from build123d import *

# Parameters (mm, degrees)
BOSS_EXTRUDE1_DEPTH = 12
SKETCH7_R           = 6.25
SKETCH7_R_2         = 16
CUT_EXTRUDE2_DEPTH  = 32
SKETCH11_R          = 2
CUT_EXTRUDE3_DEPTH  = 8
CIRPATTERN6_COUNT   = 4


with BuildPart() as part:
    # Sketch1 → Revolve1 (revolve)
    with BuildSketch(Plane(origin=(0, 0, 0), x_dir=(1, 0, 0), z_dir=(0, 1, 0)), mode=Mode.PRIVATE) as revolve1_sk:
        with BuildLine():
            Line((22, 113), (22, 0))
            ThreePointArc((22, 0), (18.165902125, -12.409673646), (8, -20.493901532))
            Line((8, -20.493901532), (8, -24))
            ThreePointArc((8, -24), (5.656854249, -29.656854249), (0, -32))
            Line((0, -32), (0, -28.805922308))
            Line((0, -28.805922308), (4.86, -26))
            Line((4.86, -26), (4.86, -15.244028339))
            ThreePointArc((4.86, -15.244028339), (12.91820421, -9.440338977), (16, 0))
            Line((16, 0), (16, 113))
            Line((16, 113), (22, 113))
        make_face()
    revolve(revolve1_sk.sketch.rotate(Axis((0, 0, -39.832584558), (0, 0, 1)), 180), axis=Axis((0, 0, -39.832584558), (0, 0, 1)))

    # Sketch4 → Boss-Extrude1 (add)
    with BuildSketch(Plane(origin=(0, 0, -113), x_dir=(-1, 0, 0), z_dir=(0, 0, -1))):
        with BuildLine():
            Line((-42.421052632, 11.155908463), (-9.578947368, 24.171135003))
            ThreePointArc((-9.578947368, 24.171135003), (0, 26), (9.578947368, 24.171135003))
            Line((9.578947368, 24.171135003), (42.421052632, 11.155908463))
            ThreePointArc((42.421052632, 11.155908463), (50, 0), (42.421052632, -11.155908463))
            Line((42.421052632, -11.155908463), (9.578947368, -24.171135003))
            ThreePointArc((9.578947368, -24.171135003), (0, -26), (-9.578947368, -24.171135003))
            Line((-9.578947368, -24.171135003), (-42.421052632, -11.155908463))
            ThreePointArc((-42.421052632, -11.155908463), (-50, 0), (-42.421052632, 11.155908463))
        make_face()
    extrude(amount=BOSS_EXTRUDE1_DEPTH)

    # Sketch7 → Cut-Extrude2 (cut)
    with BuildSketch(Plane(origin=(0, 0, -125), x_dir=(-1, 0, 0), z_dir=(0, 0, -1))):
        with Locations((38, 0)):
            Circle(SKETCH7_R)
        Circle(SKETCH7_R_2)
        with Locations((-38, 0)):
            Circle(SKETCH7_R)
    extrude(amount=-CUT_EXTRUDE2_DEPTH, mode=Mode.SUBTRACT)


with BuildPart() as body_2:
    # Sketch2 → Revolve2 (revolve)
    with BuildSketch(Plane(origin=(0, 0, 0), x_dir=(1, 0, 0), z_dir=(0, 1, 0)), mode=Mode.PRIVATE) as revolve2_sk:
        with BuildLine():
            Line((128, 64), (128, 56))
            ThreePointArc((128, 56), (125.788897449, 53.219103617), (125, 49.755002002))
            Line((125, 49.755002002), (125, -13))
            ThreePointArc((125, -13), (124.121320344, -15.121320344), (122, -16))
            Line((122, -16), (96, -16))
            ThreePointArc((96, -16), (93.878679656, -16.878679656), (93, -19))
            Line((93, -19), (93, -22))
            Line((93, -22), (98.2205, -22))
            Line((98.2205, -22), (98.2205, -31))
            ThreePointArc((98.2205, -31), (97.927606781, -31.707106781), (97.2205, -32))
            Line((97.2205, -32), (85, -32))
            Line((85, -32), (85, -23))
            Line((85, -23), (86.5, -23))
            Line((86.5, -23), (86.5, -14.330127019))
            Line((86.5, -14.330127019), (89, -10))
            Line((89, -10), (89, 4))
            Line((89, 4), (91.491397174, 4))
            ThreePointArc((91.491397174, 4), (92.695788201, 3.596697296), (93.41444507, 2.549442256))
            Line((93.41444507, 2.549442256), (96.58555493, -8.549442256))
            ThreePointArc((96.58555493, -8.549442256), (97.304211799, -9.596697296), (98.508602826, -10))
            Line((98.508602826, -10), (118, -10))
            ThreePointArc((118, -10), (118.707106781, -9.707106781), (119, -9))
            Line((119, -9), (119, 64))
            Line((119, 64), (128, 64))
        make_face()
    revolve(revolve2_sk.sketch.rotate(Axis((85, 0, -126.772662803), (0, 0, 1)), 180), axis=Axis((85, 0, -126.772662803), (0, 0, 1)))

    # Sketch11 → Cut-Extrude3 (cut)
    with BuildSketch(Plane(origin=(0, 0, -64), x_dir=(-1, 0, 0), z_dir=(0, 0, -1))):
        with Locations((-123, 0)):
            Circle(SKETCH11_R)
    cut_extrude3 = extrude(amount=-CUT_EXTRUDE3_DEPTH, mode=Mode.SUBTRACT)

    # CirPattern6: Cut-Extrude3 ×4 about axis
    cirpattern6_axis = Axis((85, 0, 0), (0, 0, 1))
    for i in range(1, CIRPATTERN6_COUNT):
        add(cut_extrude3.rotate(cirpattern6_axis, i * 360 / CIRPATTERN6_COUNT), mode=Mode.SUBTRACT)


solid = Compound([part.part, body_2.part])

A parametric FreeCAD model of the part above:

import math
import FreeCAD as App
import Part
import Sketcher

V = App.Vector
Q = App.Units.Quantity

doc = App.newDocument("Part")
params = doc.addObject("Spreadsheet::Sheet", "Params")
for row, (alias, value) in enumerate([
    ("sketch1_radius", "16 mm"),
    ("sketch1_radius2", "8 mm"),
    ("sketch1_radius3", "22 mm"),
    ("sketch1_height", "113 mm"),
    ("revolution_angle", "360 deg"),
    ("sketch2_radius", "12 mm"),
    ("sketch2_radius2", "26 mm"),
    ("pad1_length", "12 mm"),
    ("sketch3_diameter", "32 mm"),
    ("sketch3_diameter2", "12.5 mm"),
    ("pocket1_length", "32 mm"),
    ("sketch4_radius", "1 mm"),
    ("sketch4_radius2", "2 mm"),
    ("sketch4_radius3", "3 mm"),
    ("sketch4_radius4", "8 mm"),
    ("sketch4_width", "9 mm"),
    ("revolution2_angle", "360 deg"),
    ("sketch5_diameter", "4 mm"),
    ("pocket2_length", "8 mm"),
], start=1):
    params.set(f"A{row}", alias)
    params.set(f"B{row}", "=" + value)
    params.setAlias(f"B{row}", alias)

body = doc.addObject("PartDesign::Body", "Body")

sketch1 = body.newObject("Sketcher::SketchObject", "Sketch")
sketch1.AttachmentSupport = (doc.getObject("XZ_Plane"), [""])
sketch1.MapMode = "FlatFace"
sketch1.addGeometry(Part.LineSegment(V(22, 0, 0), V(22, -113, 0)), False)
sketch1.addGeometry(Part.LineSegment(V(22, -113, 0), V(16, -113, 0)), False)
sketch1.addGeometry(Part.LineSegment(V(16, -113, 0), V(16, 0, 0)), False)
sketch1.addGeometry(Part.ArcOfCircle(Part.Circle(V(0, 0, 0), V(0, 0, 1), 16), math.radians(0), math.radians(72)), False)
sketch1.addGeometry(Part.LineSegment(V(4.9, 15.2, 0), V(4.9, 26, 0)), False)
sketch1.addGeometry(Part.LineSegment(V(4.9, 26, 0), V(0, 28.8, 0)), False)
sketch1.addGeometry(Part.LineSegment(V(0, 28.8, 0), V(0, 32, 0)), False)
sketch1.addGeometry(Part.ArcOfCircle(Part.Circle(V(0, 24, 0), V(0, 0, 1), 8), math.radians(0), math.radians(90)), False)
sketch1.addGeometry(Part.LineSegment(V(8, 24, 0), V(8, 20.5, 0)), False)
sketch1.addGeometry(Part.ArcOfCircle(Part.Circle(V(0, 0, 0), V(0, 0, 1), 22), math.radians(0), math.radians(69)), False)
sketch1.addConstraint(Sketcher.Constraint("Coincident", 0, 2, 1, 1))
sketch1.addConstraint(Sketcher.Constraint("Coincident", 1, 2, 2, 1))
sketch1.addConstraint(Sketcher.Constraint("Tangent", 2, 2, 3, 1))
sketch1.addConstraint(Sketcher.Constraint("Coincident", 3, 2, 4, 1))
sketch1.addConstraint(Sketcher.Constraint("Coincident", 4, 2, 5, 1))
sketch1.addConstraint(Sketcher.Constraint("Coincident", 5, 2, 6, 1))
sketch1.addConstraint(Sketcher.Constraint("Coincident", 6, 2, 7, 2))
sketch1.addConstraint(Sketcher.Constraint("Tangent", 7, 1, 8, 1))
sketch1.addConstraint(Sketcher.Constraint("Coincident", 8, 2, 9, 2))
sketch1.addConstraint(Sketcher.Constraint("Tangent", 9, 1, 0, 1))
sketch1.addConstraint(Sketcher.Constraint("Vertical", 0))
sketch1.addConstraint(Sketcher.Constraint("Horizontal", 1))
sketch1.addConstraint(Sketcher.Constraint("Vertical", 2))
sketch1.addConstraint(Sketcher.Constraint("Vertical", 4))
sketch1.addConstraint(Sketcher.Constraint("Vertical", 6))
sketch1.addConstraint(Sketcher.Constraint("Vertical", 8))
sketch1.addConstraint(Sketcher.Constraint("Coincident", 3, 3, -1, 1))
sketch1.addConstraint(Sketcher.Constraint("Coincident", 9, 3, -1, 1))
sketch1.addConstraint(Sketcher.Constraint("PointOnObject", 7, 3, -2))
sketch1.addConstraint(Sketcher.Constraint("PointOnObject", 5, 2, -2))
sketch1.addConstraint(Sketcher.Constraint("Radius", 3, Q("16 mm")))
sketch1.addConstraint(Sketcher.Constraint("Radius", 7, Q("8 mm")))
sketch1.addConstraint(Sketcher.Constraint("Radius", 9, Q("22 mm")))
sketch1.addConstraint(Sketcher.Constraint("DistanceY", 0, 2, 0, 1, Q("113 mm")))
sketch1.addConstraint(Sketcher.Constraint("Angle", 5, Q("150 deg")))
sketch1.addConstraint(Sketcher.Constraint("DistanceY", -1, 1, 7, 3, Q("24 mm")))
sketch1.addConstraint(Sketcher.Constraint("DistanceY", -1, 1, 4, 2, Q("26 mm")))
sketch1.addConstraint(Sketcher.Constraint("DistanceX", -1, 1, 3, 2, Q("4.86 mm")))
sketch1.setExpression("Constraints[20]", "Params.sketch1_radius")
sketch1.setExpression("Constraints[21]", "Params.sketch1_radius2")
sketch1.setExpression("Constraints[22]", "Params.sketch1_radius3")
sketch1.setExpression("Constraints[23]", "Params.sketch1_height")
revolution = body.newObject("PartDesign::Revolution", "Revolution")
revolution.Profile = sketch1
revolution.ReferenceAxis = (sketch1, ["V_Axis"])
revolution.setExpression("Angle", "Params.revolution_angle")

sketch2 = body.newObject("Sketcher::SketchObject", "Sketch001")
sketch2.AttachmentSupport = (doc.getObject("XY_Plane"), [""])
sketch2.MapMode = "FlatFace"
sketch2.AttachmentOffset = App.Placement(V(0, 0, -113), App.Rotation())
sketch2.addGeometry(Part.LineSegment(V(10, 24, 0), V(42, 11, 0)), False)
sketch2.addGeometry(Part.ArcOfCircle(Part.Circle(V(38, 0, 0), V(0, 0, 1), 12), math.radians(-68), math.radians(68)), False)
sketch2.addGeometry(Part.LineSegment(V(42, -11, 0), V(10, -24, 0)), False)
sketch2.addGeometry(Part.ArcOfCircle(Part.Circle(V(0, 0, 0), V(0, 0, 1), 26), math.radians(-112), math.radians(-68)), False)
sketch2.addGeometry(Part.LineSegment(V(-10, -24, 0), V(-42, -11, 0)), False)
sketch2.addGeometry(Part.ArcOfCircle(Part.Circle(V(-38, 0, 0), V(0, 0, 1), 12), math.radians(112), math.radians(248)), False)
sketch2.addGeometry(Part.LineSegment(V(-42, 11, 0), V(-10, 24, 0)), False)
sketch2.addGeometry(Part.ArcOfCircle(Part.Circle(V(0, 0, 0), V(0, 0, 1), 26), math.radians(68), math.radians(112)), False)
sketch2.addConstraint(Sketcher.Constraint("Tangent", 0, 2, 1, 2))
sketch2.addConstraint(Sketcher.Constraint("Tangent", 1, 1, 2, 1))
sketch2.addConstraint(Sketcher.Constraint("Tangent", 2, 2, 3, 2))
sketch2.addConstraint(Sketcher.Constraint("Tangent", 3, 1, 4, 1))
sketch2.addConstraint(Sketcher.Constraint("Tangent", 4, 2, 5, 2))
sketch2.addConstraint(Sketcher.Constraint("Tangent", 5, 1, 6, 1))
sketch2.addConstraint(Sketcher.Constraint("Tangent", 6, 2, 7, 2))
sketch2.addConstraint(Sketcher.Constraint("Tangent", 7, 1, 0, 1))
sketch2.addConstraint(Sketcher.Constraint("Coincident", 3, 3, -1, 1))
sketch2.addConstraint(Sketcher.Constraint("Coincident", 7, 3, -1, 1))
sketch2.addConstraint(Sketcher.Constraint("Equal", 1, 5))
sketch2.addConstraint(Sketcher.Constraint("Equal", 3, 7))
sketch2.addConstraint(Sketcher.Constraint("Symmetric", 1, 3, 5, 3, -1, 1))
sketch2.addConstraint(Sketcher.Constraint("PointOnObject", 1, 3, -1))
sketch2.addConstraint(Sketcher.Constraint("Radius", 1, Q("12 mm")))
sketch2.addConstraint(Sketcher.Constraint("Radius", 3, Q("26 mm")))
sketch2.addConstraint(Sketcher.Constraint("DistanceX", -1, 1, 1, 3, Q("38 mm")))
sketch2.setExpression("Constraints[14]", "Params.sketch2_radius")
sketch2.setExpression("Constraints[15]", "Params.sketch2_radius2")
pad1 = body.newObject("PartDesign::Pad", "Pad")
pad1.Profile = sketch2
pad1.setExpression("Length", "Params.pad1_length")
pad1.Reversed = True

sketch3 = body.newObject("Sketcher::SketchObject", "Sketch002")
sketch3.AttachmentSupport = (doc.getObject("XY_Plane"), [""])
sketch3.MapMode = "FlatFace"
sketch3.AttachmentOffset = App.Placement(V(0, 0, -125), App.Rotation())
sketch3.addGeometry(Part.Circle(V(-38, 0, 0), V(0, 0, 1), 6), False)
sketch3.addGeometry(Part.Circle(V(0, 0, 0), V(0, 0, 1), 16), False)
sketch3.addGeometry(Part.Circle(V(38, 0, 0), V(0, 0, 1), 6), False)
sketch3.addConstraint(Sketcher.Constraint("Coincident", 1, 3, -1, 1))
sketch3.addConstraint(Sketcher.Constraint("Equal", 0, 2))
sketch3.addConstraint(Sketcher.Constraint("Symmetric", 0, 3, 2, 3, -1, 1))
sketch3.addConstraint(Sketcher.Constraint("PointOnObject", 0, 3, -1))
sketch3.addConstraint(Sketcher.Constraint("Diameter", 1, Q("32 mm")))
sketch3.addConstraint(Sketcher.Constraint("Diameter", 0, Q("12.5 mm")))
sketch3.addConstraint(Sketcher.Constraint("DistanceX", 0, 3, -1, 1, Q("38 mm")))
sketch3.setExpression("Constraints[4]", "Params.sketch3_diameter")
sketch3.setExpression("Constraints[5]", "Params.sketch3_diameter2")
pocket1 = body.newObject("PartDesign::Pocket", "Pocket")
pocket1.Profile = sketch3
pocket1.setExpression("Length", "Params.pocket1_length")
pocket1.Reversed = True
body2 = doc.addObject("PartDesign::Body", "Body001")

sketch4 = body2.newObject("Sketcher::SketchObject", "Sketch003")
sketch4.AttachmentSupport = (doc.getObject("XZ_Plane001"), [""])
sketch4.MapMode = "FlatFace"
sketch4.addGeometry(Part.LineSegment(V(128, -56, 0), V(128, -64, 0)), False)
sketch4.addGeometry(Part.LineSegment(V(128, -64, 0), V(119, -64, 0)), False)
sketch4.addGeometry(Part.LineSegment(V(119, -64, 0), V(119, 9, 0)), False)
sketch4.addGeometry(Part.ArcOfCircle(Part.Circle(V(118, 9, 0), V(0, 0, 1), 1), math.radians(0), math.radians(90)), False)
sketch4.addGeometry(Part.LineSegment(V(118, 10, 0), V(98.5, 10, 0)), False)
sketch4.addGeometry(Part.ArcOfCircle(Part.Circle(V(98.5, 8, 0), V(0, 0, 1), 2), math.radians(90), math.radians(164)), False)
sketch4.addGeometry(Part.LineSegment(V(96.6, 8.5, 0), V(93.4, -2.5, 0)), False)
sketch4.addGeometry(Part.ArcOfCircle(Part.Circle(V(91.5, -2, 0), V(0, 0, 1), 2), math.radians(-90), math.radians(-16)), False)
sketch4.addGeometry(Part.LineSegment(V(91.5, -4, 0), V(89, -4, 0)), False)
sketch4.addGeometry(Part.LineSegment(V(89, -4, 0), V(89, 10, 0)), False)
sketch4.addGeometry(Part.LineSegment(V(89, 10, 0), V(86.5, 14.3, 0)), False)
sketch4.addGeometry(Part.LineSegment(V(86.5, 14.3, 0), V(86.5, 23, 0)), False)
sketch4.addGeometry(Part.LineSegment(V(86.5, 23, 0), V(85, 23, 0)), False)
sketch4.addGeometry(Part.LineSegment(V(85, 23, 0), V(85, 32, 0)), False)
sketch4.addGeometry(Part.LineSegment(V(85, 32, 0), V(97.2, 32, 0)), False)
sketch4.addGeometry(Part.ArcOfCircle(Part.Circle(V(97.2, 31, 0), V(0, 0, 1), 1), math.radians(0), math.radians(90)), False)
sketch4.addGeometry(Part.LineSegment(V(98.2, 31, 0), V(98.2, 22, 0)), False)
sketch4.addGeometry(Part.LineSegment(V(98.2, 22, 0), V(93, 22, 0)), False)
sketch4.addGeometry(Part.LineSegment(V(93, 22, 0), V(93, 19, 0)), False)
sketch4.addGeometry(Part.ArcOfCircle(Part.Circle(V(96, 19, 0), V(0, 0, 1), 3), math.radians(180), math.radians(270)), False)
sketch4.addGeometry(Part.LineSegment(V(96, 16, 0), V(122, 16, 0)), False)
sketch4.addGeometry(Part.ArcOfCircle(Part.Circle(V(122, 13, 0), V(0, 0, 1), 3), math.radians(0), math.radians(90)), False)
sketch4.addGeometry(Part.LineSegment(V(125, 13, 0), V(125, -49.8, 0)), False)
sketch4.addGeometry(Part.ArcOfCircle(Part.Circle(V(133, -49.8, 0), V(0, 0, 1), 8), math.radians(180), math.radians(231)), False)
sketch4.addGeometry(Part.LineSegment(V(85, -64, 0), V(85, 32, 0)), True)
sketch4.addConstraint(Sketcher.Constraint("Coincident", 0, 2, 1, 1))
sketch4.addConstraint(Sketcher.Constraint("Coincident", 1, 2, 2, 1))
sketch4.addConstraint(Sketcher.Constraint("Tangent", 2, 2, 3, 1))
sketch4.addConstraint(Sketcher.Constraint("Tangent", 3, 2, 4, 1))
sketch4.addConstraint(Sketcher.Constraint("Tangent", 4, 2, 5, 1))
sketch4.addConstraint(Sketcher.Constraint("Tangent", 5, 2, 6, 1))
sketch4.addConstraint(Sketcher.Constraint("Tangent", 6, 2, 7, 2))
sketch4.addConstraint(Sketcher.Constraint("Tangent", 7, 1, 8, 1))
sketch4.addConstraint(Sketcher.Constraint("Coincident", 8, 2, 9, 1))
sketch4.addConstraint(Sketcher.Constraint("Coincident", 9, 2, 10, 1))
sketch4.addConstraint(Sketcher.Constraint("Coincident", 10, 2, 11, 1))
sketch4.addConstraint(Sketcher.Constraint("Coincident", 11, 2, 12, 1))
sketch4.addConstraint(Sketcher.Constraint("Coincident", 12, 2, 13, 1))
sketch4.addConstraint(Sketcher.Constraint("Coincident", 13, 2, 14, 1))
sketch4.addConstraint(Sketcher.Constraint("Tangent", 14, 2, 15, 2))
sketch4.addConstraint(Sketcher.Constraint("Tangent", 15, 1, 16, 1))
sketch4.addConstraint(Sketcher.Constraint("Coincident", 16, 2, 17, 1))
sketch4.addConstraint(Sketcher.Constraint("Coincident", 17, 2, 18, 1))
sketch4.addConstraint(Sketcher.Constraint("Tangent", 18, 2, 19, 1))
sketch4.addConstraint(Sketcher.Constraint("Tangent", 19, 2, 20, 1))
sketch4.addConstraint(Sketcher.Constraint("Tangent", 20, 2, 21, 2))
sketch4.addConstraint(Sketcher.Constraint("Tangent", 21, 1, 22, 1))
sketch4.addConstraint(Sketcher.Constraint("Tangent", 22, 2, 23, 1))
sketch4.addConstraint(Sketcher.Constraint("Coincident", 23, 2, 0, 1))
sketch4.addConstraint(Sketcher.Constraint("Vertical", 0))
sketch4.addConstraint(Sketcher.Constraint("Horizontal", 1))
sketch4.addConstraint(Sketcher.Constraint("Vertical", 2))
sketch4.addConstraint(Sketcher.Constraint("Horizontal", 4))
sketch4.addConstraint(Sketcher.Constraint("Horizontal", 8))
sketch4.addConstraint(Sketcher.Constraint("Vertical", 9))
sketch4.addConstraint(Sketcher.Constraint("Vertical", 11))
sketch4.addConstraint(Sketcher.Constraint("Horizontal", 12))
sketch4.addConstraint(Sketcher.Constraint("Vertical", 13))
sketch4.addConstraint(Sketcher.Constraint("Horizontal", 14))
sketch4.addConstraint(Sketcher.Constraint("Vertical", 16))
sketch4.addConstraint(Sketcher.Constraint("Horizontal", 17))
sketch4.addConstraint(Sketcher.Constraint("Vertical", 18))
sketch4.addConstraint(Sketcher.Constraint("Horizontal", 20))
sketch4.addConstraint(Sketcher.Constraint("Vertical", 22))
sketch4.addConstraint(Sketcher.Constraint("Vertical", 24))
sketch4.addConstraint(Sketcher.Constraint("Coincident", 24, 2, 13, 2))
sketch4.addConstraint(Sketcher.Constraint("Equal", 5, 7))
sketch4.addConstraint(Sketcher.Constraint("Equal", 3, 15))
sketch4.addConstraint(Sketcher.Constraint("Equal", 19, 21))
sketch4.addConstraint(Sketcher.Constraint("Horizontal", 4, 2, 9, 2))
sketch4.addConstraint(Sketcher.Constraint("Horizontal", 1, 2, 24, 1))
sketch4.addConstraint(Sketcher.Constraint("Equal", 1, 13))
sketch4.addConstraint(Sketcher.Constraint("Equal", 13, 16))
sketch4.addConstraint(Sketcher.Constraint("Radius", 3, Q("1 mm")))
sketch4.addConstraint(Sketcher.Constraint("Radius", 5, Q("2 mm")))
sketch4.addConstraint(Sketcher.Constraint("Radius", 19, Q("3 mm")))
sketch4.addConstraint(Sketcher.Constraint("Radius", 23, Q("8 mm")))
sketch4.addConstraint(Sketcher.Constraint("DistanceX", 1, 2, 1, 1, Q("9 mm")))
sketch4.addConstraint(Sketcher.Constraint("DistanceX", 20, 1, 20, 2, Q("26 mm")))
sketch4.addConstraint(Sketcher.Constraint("DistanceY", 0, 2, 0, 1, Q("8 mm")))
sketch4.addConstraint(Sketcher.Constraint("DistanceY", 2, 1, 2, 2, Q("73 mm")))
sketch4.addConstraint(Sketcher.Constraint("DistanceY", 9, 1, 9, 2, Q("14 mm")))
sketch4.addConstraint(Sketcher.Constraint("DistanceY", 18, 2, 18, 1, Q("3 mm")))
sketch4.addConstraint(Sketcher.Constraint("DistanceY", 24, 1, 24, 2, Q("96 mm")))
sketch4.addConstraint(Sketcher.Constraint("Angle", 10, Q("120 deg")))
sketch4.addConstraint(Sketcher.Constraint("Distance", 10, Q("5 mm")))
sketch4.addConstraint(Sketcher.Constraint("DistanceX", 12, 2, 12, 1, Q("1.5 mm")))
sketch4.addConstraint(Sketcher.Constraint("DistanceX", -1, 1, 3, 3, Q("118 mm")))
sketch4.addConstraint(Sketcher.Constraint("DistanceY", -1, 1, 3, 3, Q("9 mm")))
sketch4.addConstraint(Sketcher.Constraint("DistanceX", -1, 1, 19, 3, Q("96 mm")))
sketch4.addConstraint(Sketcher.Constraint("DistanceX", -1, 1, 8, 2, Q("89 mm")))
sketch4.addConstraint(Sketcher.Constraint("DistanceX", 14, 1, 14, 2, Q("12.2205 mm")))
sketch4.addConstraint(Sketcher.Constraint("DistanceX", 4, 2, 4, 1, Q("19.491397 mm")))
sketch4.addConstraint(Sketcher.Constraint("DistanceX", 8, 2, 8, 1, Q("2.491397 mm")))
sketch4.setExpression("Constraints[48]", "Params.sketch4_radius")
sketch4.setExpression("Constraints[49]", "Params.sketch4_radius2")
sketch4.setExpression("Constraints[50]", "Params.sketch4_radius3")
sketch4.setExpression("Constraints[51]", "Params.sketch4_radius4")
sketch4.setExpression("Constraints[52]", "Params.sketch4_width")
revolution2 = body2.newObject("PartDesign::Revolution", "Revolution001")
revolution2.Profile = sketch4
revolution2.ReferenceAxis = (sketch4, ["Axis0"])
revolution2.setExpression("Angle", "Params.revolution2_angle")

sketch5 = body2.newObject("Sketcher::SketchObject", "Sketch004")
sketch5.AttachmentSupport = (doc.getObject("XY_Plane001"), [""])
sketch5.MapMode = "FlatFace"
sketch5.AttachmentOffset = App.Placement(V(0, 0, -64), App.Rotation())
sketch5.addGeometry(Part.Circle(V(123, 0, 0), V(0, 0, 1), 2), False)
sketch5.addConstraint(Sketcher.Constraint("PointOnObject", 0, 3, -1))
sketch5.addConstraint(Sketcher.Constraint("Diameter", 0, Q("4 mm")))
sketch5.addConstraint(Sketcher.Constraint("DistanceX", -1, 1, 0, 3, Q("123 mm")))
sketch5.setExpression("Constraints[1]", "Params.sketch5_diameter")
pocket2 = body2.newObject("PartDesign::Pocket", "Pocket001")
pocket2.Profile = sketch5
pocket2.setExpression("Length", "Params.pocket2_length")
pocket2.Reversed = True
doc.recompute()

datumline = body2.newObject("PartDesign::Line", "DatumLine")
datumline.Placement = App.Placement(V(85, 0, 0), App.Rotation(V(0, 0, 1), V(0, 0, 1)))
polarpattern = body2.newObject("PartDesign::PolarPattern", "PolarPattern")
polarpattern.Originals = [pocket2]
polarpattern.Axis = (datumline, [""])
polarpattern.Angle = 360
polarpattern.Occurrences = 4
body2.Tip = polarpattern

doc.recompute()
